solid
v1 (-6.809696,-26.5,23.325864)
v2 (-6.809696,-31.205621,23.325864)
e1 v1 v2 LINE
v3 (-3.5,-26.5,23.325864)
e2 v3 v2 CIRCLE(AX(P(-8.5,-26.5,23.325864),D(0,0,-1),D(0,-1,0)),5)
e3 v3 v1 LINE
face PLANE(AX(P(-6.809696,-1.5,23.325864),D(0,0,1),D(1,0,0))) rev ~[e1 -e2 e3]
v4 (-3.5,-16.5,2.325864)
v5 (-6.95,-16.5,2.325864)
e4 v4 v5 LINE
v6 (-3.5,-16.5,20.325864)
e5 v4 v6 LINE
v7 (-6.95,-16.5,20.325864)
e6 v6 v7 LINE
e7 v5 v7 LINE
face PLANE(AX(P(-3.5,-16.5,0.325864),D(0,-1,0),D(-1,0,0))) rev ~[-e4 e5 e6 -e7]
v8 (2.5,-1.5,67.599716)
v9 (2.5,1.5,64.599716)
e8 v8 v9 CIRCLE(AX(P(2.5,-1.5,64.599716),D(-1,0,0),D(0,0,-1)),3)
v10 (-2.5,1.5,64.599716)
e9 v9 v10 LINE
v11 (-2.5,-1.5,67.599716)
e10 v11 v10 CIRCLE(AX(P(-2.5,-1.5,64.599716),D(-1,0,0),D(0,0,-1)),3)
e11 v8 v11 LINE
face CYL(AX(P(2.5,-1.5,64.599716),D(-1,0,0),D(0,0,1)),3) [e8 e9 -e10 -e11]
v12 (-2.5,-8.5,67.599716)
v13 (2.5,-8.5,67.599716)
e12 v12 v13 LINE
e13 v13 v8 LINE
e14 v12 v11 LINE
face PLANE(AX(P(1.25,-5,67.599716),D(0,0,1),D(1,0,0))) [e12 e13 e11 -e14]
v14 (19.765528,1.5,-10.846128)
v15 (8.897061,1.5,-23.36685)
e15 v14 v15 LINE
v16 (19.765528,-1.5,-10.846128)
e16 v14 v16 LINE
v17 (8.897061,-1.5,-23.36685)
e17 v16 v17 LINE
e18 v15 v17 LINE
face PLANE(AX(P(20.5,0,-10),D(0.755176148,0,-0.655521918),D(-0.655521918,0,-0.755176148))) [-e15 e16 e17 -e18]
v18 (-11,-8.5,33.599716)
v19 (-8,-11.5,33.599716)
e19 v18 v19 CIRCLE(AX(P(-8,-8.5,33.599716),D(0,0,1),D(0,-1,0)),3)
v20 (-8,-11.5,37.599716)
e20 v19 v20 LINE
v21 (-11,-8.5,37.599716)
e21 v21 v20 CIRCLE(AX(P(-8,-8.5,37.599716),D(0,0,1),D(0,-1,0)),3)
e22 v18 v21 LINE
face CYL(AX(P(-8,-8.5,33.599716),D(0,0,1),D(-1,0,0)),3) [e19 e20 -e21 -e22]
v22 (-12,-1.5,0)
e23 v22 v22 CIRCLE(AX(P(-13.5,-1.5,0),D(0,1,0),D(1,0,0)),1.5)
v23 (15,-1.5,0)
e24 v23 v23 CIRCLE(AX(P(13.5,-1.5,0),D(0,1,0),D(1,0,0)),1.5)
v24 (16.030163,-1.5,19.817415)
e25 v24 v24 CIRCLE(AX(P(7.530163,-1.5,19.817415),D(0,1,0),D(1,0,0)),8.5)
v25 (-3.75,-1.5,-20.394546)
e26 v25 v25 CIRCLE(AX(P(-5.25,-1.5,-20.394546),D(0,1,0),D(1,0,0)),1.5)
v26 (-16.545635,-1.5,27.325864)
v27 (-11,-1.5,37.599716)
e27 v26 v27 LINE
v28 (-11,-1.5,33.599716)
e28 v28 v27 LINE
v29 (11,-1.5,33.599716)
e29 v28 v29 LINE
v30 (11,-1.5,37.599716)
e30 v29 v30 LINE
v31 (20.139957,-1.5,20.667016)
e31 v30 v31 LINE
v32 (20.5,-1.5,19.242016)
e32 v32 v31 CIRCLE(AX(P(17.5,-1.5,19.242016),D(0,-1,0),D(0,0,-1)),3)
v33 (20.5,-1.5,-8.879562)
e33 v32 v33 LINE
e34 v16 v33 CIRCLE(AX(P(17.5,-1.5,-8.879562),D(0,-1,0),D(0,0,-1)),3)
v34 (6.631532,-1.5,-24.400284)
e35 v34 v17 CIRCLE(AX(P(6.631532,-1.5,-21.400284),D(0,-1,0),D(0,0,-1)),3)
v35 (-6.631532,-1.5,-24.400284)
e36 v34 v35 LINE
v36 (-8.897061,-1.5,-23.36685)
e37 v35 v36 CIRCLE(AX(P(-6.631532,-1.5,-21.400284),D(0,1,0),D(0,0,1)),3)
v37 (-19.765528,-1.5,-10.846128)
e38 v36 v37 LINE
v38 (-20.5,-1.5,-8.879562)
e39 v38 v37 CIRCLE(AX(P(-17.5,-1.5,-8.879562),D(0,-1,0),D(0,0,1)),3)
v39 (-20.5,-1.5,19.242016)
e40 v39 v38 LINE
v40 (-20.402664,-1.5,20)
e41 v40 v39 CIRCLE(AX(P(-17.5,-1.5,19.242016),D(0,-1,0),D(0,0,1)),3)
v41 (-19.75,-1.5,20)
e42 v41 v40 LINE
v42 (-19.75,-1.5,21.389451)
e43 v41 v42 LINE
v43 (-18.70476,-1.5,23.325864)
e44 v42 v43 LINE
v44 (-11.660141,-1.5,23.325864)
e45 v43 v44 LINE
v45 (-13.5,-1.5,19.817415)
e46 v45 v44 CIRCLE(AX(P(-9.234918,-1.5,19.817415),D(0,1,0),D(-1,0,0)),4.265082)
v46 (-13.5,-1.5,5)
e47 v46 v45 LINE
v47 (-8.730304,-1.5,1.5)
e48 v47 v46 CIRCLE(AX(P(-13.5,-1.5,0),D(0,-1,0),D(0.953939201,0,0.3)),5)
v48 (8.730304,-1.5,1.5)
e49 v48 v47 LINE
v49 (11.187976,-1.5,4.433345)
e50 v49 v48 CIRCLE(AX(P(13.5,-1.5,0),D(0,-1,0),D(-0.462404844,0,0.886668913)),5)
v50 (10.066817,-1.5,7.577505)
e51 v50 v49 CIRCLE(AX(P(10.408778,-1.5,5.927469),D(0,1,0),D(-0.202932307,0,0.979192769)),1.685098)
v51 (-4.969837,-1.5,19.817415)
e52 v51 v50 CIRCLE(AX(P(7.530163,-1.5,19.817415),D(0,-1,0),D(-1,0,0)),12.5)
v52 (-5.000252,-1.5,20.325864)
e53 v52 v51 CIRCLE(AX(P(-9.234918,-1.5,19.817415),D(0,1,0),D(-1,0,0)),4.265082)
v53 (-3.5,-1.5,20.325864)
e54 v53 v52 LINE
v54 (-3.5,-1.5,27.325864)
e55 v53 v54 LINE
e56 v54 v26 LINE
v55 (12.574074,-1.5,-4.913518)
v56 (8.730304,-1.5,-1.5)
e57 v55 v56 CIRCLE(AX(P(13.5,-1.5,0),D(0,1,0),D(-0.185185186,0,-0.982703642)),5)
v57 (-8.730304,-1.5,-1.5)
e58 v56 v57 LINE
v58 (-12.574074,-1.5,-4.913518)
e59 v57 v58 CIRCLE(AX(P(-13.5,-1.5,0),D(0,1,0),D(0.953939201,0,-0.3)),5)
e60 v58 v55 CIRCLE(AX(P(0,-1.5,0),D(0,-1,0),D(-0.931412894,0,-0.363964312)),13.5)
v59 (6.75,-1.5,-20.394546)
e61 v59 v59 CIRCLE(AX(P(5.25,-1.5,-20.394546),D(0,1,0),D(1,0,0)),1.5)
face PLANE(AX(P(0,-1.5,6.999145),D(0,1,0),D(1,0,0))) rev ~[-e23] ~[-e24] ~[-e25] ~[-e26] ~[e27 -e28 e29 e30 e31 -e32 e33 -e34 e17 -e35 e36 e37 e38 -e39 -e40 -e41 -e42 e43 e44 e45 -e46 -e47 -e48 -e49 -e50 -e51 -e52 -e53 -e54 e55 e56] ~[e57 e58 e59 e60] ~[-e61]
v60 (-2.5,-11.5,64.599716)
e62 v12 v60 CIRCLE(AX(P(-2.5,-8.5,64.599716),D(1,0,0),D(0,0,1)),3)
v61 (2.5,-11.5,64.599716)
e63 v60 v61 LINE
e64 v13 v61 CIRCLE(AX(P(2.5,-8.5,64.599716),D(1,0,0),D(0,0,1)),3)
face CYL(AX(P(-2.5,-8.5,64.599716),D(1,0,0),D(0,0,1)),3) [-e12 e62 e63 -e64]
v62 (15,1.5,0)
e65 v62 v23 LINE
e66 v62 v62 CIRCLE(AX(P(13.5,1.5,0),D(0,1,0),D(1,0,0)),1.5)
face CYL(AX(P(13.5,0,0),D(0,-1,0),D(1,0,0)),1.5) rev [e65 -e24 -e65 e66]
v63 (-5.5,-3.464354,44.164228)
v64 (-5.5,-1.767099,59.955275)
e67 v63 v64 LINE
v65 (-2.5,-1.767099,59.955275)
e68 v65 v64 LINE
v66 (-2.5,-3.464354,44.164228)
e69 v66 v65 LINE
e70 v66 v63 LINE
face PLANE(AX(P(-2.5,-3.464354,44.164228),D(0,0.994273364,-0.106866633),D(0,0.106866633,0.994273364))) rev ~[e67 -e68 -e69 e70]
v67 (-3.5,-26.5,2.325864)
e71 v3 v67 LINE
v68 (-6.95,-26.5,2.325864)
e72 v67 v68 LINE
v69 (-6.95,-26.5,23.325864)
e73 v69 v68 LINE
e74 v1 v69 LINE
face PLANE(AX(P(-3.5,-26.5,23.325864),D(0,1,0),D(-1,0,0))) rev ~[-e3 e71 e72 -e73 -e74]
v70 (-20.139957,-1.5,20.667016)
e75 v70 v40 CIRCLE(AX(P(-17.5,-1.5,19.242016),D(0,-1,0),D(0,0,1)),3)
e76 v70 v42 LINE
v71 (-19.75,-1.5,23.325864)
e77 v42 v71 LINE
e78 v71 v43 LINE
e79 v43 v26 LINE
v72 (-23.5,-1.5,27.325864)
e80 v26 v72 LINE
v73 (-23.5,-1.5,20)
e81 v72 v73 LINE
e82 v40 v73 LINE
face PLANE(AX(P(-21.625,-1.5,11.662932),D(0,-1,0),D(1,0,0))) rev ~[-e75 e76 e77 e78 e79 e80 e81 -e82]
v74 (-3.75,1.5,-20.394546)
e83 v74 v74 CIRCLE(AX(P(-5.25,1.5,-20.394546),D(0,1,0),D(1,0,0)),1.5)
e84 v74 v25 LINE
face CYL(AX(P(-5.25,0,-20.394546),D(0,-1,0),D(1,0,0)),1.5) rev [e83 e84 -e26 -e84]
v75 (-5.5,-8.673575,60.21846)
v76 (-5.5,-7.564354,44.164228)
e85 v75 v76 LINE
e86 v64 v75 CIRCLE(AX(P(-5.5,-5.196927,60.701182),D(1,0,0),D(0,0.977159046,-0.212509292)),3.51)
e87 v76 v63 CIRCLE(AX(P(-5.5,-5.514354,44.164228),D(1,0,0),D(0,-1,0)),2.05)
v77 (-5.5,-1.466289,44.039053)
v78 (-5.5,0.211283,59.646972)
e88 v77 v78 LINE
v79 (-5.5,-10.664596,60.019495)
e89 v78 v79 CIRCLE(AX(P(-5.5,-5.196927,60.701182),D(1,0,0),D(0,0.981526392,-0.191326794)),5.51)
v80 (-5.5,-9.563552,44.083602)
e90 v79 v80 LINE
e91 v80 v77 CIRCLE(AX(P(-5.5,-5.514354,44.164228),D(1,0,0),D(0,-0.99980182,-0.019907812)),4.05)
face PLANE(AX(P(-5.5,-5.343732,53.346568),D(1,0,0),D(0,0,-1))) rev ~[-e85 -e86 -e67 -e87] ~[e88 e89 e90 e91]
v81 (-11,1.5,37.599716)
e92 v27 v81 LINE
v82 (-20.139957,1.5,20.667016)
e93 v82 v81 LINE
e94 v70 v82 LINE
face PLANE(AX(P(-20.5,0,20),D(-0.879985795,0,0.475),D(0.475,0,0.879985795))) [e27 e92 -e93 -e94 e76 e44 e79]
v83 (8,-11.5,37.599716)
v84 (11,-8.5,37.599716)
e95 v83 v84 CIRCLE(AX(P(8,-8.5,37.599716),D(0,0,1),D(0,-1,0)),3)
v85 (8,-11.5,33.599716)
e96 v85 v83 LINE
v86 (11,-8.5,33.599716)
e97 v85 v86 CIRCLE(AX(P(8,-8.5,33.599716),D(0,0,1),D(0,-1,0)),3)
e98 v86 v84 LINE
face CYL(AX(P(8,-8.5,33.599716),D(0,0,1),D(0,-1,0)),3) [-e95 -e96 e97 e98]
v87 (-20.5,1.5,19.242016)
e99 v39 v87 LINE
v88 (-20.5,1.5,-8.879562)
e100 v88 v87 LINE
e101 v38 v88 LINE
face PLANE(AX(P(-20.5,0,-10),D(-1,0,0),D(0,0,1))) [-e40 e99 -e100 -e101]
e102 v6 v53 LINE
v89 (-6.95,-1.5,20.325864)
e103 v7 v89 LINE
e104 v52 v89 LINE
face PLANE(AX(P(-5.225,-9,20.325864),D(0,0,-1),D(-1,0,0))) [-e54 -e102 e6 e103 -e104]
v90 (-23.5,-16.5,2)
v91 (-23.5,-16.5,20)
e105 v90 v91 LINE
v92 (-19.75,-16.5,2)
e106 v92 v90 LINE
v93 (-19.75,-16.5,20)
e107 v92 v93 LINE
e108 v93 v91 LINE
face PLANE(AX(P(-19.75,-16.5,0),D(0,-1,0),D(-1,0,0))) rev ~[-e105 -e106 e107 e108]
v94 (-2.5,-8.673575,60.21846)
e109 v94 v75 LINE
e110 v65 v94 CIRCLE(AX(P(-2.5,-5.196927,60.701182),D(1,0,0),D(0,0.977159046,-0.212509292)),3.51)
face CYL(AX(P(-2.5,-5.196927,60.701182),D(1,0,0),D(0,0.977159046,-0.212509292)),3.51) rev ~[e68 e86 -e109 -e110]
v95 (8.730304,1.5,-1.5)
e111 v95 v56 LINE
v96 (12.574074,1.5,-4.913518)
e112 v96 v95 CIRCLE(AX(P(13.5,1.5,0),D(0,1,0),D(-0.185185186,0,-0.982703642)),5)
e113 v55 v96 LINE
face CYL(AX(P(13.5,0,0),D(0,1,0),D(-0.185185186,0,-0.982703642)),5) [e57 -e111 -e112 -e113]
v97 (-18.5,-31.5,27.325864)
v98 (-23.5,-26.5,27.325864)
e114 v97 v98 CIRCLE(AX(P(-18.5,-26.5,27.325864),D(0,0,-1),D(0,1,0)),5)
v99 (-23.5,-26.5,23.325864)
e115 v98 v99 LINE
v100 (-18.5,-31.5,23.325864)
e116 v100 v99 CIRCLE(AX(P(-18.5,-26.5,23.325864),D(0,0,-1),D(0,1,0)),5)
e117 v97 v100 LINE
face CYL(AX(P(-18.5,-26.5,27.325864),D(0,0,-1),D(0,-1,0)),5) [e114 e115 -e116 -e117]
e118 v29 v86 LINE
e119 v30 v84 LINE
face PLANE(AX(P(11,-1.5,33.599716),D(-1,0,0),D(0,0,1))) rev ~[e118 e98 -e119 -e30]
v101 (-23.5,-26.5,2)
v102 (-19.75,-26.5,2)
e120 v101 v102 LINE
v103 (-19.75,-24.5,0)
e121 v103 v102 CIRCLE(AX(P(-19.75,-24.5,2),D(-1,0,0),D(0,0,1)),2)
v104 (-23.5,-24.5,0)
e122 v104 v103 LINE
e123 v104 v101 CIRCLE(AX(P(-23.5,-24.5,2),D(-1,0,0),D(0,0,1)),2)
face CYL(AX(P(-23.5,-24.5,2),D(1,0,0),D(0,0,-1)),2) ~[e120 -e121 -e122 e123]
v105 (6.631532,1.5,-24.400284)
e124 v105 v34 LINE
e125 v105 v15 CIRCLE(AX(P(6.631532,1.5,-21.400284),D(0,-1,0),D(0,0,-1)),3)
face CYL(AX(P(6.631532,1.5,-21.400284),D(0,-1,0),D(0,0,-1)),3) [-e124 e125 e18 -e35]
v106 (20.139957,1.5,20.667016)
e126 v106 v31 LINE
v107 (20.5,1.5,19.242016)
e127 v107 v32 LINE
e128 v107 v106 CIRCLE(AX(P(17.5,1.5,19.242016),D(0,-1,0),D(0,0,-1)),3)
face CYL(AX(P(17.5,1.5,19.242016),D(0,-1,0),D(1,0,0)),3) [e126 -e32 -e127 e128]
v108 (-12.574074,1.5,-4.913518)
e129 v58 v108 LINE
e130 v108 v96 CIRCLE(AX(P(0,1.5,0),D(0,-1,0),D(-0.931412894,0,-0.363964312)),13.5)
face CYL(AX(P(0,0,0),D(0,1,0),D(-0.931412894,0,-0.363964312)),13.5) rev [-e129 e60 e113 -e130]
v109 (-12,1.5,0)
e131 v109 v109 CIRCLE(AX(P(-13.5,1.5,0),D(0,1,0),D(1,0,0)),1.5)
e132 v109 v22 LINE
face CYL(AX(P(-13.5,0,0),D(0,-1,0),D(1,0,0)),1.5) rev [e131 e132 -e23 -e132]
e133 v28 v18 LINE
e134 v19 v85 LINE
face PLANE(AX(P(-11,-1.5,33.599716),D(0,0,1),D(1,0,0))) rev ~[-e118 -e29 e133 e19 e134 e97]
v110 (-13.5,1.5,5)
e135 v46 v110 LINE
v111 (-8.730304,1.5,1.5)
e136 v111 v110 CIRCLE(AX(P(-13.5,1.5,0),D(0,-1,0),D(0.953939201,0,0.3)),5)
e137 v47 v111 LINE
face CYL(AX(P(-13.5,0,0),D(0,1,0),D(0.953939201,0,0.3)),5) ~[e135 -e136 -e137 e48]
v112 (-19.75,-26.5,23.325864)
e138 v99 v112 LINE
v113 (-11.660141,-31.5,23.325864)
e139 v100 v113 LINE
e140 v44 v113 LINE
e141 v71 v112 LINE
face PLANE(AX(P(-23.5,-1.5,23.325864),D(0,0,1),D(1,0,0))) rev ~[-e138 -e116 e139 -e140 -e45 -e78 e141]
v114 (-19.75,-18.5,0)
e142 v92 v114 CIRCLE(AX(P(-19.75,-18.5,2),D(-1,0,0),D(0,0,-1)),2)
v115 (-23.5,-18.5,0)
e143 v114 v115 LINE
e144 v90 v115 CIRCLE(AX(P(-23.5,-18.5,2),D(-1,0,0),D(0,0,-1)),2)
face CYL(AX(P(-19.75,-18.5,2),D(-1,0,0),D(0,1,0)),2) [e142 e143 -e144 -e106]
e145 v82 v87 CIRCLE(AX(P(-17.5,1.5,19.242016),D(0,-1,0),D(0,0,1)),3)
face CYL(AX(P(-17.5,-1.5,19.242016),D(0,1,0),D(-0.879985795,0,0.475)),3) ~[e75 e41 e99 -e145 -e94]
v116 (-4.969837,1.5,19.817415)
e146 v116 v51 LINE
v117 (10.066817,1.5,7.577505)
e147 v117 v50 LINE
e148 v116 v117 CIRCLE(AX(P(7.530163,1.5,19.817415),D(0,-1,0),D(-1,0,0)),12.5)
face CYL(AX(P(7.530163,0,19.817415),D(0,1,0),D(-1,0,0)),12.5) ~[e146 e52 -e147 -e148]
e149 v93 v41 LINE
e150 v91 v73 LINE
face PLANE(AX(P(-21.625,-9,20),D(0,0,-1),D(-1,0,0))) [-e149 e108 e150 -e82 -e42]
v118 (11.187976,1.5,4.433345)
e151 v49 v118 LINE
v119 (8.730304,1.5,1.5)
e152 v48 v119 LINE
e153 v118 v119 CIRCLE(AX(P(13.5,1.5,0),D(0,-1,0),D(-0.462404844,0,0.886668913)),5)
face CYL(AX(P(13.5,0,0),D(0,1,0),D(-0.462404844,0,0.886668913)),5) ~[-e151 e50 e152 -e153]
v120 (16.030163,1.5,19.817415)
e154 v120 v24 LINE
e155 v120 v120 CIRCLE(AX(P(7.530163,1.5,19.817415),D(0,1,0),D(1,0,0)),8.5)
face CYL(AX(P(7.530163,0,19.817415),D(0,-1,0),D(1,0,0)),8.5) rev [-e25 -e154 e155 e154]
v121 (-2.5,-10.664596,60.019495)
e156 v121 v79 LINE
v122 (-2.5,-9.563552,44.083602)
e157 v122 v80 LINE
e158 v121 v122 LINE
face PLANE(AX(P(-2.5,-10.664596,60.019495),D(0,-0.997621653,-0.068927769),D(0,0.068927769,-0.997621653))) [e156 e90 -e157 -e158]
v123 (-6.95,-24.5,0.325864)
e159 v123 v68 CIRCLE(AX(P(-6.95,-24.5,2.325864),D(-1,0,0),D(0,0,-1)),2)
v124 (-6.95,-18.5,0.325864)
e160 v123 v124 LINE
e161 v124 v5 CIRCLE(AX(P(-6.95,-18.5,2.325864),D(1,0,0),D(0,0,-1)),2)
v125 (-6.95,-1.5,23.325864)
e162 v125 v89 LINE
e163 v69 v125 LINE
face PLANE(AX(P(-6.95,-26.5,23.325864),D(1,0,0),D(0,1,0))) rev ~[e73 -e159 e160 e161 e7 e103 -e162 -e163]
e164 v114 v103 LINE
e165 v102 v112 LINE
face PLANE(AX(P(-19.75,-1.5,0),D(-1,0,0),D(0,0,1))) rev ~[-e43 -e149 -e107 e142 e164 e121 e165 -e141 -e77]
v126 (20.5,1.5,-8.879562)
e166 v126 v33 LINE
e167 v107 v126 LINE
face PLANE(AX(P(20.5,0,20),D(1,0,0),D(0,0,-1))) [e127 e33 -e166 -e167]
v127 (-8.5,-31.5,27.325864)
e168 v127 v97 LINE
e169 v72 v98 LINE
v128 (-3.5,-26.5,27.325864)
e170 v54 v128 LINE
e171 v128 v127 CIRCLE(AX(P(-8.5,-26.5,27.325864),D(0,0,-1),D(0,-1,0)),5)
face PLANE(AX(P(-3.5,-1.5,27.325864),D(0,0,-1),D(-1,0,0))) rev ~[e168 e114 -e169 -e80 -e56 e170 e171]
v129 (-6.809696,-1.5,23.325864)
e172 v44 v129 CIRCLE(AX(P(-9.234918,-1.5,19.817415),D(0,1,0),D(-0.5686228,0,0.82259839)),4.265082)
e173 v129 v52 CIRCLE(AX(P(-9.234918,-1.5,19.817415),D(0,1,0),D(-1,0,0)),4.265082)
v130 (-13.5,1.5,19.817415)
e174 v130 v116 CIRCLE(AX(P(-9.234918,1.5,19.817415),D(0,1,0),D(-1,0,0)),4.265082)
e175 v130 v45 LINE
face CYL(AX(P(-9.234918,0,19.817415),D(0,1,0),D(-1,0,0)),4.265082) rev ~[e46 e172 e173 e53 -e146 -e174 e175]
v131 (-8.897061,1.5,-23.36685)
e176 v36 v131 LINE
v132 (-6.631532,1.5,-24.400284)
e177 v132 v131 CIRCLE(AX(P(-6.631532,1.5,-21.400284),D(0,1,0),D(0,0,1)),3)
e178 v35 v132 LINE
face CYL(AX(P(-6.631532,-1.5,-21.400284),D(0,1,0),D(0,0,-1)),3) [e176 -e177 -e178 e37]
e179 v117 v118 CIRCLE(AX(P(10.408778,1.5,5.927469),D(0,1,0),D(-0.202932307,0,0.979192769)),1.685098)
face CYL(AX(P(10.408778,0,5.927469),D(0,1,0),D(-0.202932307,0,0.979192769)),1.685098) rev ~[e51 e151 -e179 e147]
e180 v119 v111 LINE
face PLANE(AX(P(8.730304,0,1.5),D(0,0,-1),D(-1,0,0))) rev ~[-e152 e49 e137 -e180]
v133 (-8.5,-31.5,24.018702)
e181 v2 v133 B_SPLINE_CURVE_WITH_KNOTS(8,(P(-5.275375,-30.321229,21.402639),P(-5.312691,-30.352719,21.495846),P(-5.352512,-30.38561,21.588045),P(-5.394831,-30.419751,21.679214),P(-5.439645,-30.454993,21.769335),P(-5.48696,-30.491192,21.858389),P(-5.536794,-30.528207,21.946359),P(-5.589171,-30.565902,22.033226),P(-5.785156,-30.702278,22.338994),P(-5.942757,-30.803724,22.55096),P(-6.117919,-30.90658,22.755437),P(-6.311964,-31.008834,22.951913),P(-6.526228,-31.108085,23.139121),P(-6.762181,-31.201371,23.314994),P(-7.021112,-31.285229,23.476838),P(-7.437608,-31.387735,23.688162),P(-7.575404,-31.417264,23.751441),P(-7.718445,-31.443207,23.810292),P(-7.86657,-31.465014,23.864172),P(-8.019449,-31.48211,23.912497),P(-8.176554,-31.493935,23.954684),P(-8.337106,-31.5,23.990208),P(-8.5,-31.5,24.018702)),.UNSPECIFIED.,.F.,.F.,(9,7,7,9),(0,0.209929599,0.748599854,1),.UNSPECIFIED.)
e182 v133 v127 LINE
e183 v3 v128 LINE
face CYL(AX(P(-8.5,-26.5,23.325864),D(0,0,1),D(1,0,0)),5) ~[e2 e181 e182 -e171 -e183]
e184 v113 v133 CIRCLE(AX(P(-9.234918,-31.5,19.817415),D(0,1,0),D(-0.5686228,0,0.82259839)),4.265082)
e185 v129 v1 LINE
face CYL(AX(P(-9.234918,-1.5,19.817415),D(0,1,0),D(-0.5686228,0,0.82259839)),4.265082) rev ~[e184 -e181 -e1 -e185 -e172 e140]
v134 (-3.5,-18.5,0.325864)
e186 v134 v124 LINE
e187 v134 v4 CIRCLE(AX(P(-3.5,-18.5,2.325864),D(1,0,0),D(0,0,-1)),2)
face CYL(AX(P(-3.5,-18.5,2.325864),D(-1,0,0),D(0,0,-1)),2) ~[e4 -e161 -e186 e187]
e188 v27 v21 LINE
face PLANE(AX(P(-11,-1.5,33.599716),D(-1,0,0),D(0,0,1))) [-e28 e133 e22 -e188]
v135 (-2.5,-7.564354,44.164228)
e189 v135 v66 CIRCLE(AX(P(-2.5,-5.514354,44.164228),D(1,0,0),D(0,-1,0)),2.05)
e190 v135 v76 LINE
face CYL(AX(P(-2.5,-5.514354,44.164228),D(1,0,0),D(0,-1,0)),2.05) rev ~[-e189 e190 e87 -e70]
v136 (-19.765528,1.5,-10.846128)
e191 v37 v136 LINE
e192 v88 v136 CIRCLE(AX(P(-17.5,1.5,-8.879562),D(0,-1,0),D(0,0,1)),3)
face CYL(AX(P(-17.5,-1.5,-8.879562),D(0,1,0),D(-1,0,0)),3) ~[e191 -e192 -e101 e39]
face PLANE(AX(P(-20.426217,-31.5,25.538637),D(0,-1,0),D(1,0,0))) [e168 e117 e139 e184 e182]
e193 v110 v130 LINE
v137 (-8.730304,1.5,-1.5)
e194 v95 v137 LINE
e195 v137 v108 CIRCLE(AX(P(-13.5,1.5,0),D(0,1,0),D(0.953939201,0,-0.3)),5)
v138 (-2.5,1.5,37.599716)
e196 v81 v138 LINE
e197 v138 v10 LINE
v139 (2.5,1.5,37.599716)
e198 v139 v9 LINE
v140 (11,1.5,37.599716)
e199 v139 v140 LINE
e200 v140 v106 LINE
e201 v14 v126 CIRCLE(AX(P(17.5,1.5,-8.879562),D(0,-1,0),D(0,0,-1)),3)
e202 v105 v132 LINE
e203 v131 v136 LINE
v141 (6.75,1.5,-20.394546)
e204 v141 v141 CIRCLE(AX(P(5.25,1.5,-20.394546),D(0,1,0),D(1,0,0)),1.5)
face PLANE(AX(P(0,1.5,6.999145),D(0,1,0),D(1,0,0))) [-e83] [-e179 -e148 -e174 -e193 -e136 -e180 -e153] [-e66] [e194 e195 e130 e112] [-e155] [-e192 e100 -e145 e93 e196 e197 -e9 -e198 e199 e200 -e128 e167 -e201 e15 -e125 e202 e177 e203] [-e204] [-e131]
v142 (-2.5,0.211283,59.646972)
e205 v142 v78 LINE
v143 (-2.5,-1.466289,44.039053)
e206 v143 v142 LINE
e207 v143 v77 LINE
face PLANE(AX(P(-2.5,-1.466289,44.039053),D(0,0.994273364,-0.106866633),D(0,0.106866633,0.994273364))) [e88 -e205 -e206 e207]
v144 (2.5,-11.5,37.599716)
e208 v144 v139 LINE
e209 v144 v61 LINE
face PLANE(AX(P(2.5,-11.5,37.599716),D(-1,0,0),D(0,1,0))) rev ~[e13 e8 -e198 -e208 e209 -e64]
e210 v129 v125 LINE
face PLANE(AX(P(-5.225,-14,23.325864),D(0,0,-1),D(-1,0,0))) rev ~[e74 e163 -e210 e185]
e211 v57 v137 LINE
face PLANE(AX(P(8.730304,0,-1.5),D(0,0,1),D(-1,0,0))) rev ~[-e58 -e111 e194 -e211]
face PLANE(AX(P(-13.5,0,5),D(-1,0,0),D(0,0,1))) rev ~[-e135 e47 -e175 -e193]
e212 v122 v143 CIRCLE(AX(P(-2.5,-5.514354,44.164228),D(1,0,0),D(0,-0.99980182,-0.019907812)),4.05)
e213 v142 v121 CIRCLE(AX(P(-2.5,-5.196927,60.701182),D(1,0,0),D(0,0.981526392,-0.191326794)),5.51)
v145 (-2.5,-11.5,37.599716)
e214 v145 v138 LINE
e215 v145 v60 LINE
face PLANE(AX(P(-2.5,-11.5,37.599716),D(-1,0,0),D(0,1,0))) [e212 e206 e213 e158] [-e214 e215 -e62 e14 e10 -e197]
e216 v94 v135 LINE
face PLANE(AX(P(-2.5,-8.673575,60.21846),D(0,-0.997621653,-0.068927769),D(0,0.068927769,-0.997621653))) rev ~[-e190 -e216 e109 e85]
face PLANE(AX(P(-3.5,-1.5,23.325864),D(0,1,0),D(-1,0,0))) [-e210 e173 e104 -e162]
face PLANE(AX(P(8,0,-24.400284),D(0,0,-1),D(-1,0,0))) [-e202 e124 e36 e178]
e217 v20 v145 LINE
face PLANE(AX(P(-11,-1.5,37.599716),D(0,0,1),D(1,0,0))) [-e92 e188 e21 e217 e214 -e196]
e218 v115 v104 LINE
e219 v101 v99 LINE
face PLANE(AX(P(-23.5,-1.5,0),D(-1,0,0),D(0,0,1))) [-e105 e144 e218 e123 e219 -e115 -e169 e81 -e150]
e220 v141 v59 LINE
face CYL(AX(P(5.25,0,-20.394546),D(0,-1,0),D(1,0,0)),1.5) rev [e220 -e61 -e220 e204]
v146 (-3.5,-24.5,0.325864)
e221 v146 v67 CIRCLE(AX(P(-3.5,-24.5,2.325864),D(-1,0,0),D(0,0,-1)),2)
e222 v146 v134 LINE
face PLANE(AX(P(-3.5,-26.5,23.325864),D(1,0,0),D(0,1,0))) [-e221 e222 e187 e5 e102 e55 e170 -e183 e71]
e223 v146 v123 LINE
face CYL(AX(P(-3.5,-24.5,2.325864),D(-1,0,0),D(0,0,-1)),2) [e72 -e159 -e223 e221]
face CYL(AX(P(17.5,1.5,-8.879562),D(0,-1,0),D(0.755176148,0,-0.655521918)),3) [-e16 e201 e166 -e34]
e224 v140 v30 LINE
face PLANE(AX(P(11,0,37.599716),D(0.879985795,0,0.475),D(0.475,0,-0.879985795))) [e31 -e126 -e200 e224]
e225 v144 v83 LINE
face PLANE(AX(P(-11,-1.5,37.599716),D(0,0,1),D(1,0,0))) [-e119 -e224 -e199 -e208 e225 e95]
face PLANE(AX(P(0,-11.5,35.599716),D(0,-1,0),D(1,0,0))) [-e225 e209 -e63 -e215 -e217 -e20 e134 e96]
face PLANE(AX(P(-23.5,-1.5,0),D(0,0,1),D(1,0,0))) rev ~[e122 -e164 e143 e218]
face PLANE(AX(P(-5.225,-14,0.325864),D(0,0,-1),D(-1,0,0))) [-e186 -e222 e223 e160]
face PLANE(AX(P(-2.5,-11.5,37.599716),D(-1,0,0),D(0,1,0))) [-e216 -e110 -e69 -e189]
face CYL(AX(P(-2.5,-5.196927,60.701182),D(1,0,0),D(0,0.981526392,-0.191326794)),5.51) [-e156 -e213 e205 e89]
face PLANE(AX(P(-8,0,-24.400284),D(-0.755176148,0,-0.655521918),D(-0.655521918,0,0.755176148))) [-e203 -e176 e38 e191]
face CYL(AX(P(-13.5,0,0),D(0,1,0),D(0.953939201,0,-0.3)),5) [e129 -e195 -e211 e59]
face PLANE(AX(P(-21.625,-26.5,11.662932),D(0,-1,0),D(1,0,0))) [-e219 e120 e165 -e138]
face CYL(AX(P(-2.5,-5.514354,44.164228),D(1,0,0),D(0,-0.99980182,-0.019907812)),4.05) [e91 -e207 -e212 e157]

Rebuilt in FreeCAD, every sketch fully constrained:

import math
import FreeCAD as App
import Part
import Sketcher
from FreeCAD import Vector
Q = App.Units.Quantity


def edges_at(feature, points):
    """Names of the edges that pass closest to the given points."""
    edges = feature.Shape.Edges
    near = lambda p: min(range(len(edges)), key=lambda i: edges[i].distToShape(Part.Vertex(*p))[0])
    return sorted({f"Edge{near(p) + 1}" for p in points})

doc = App.newDocument("Part")
params = doc.addObject("Spreadsheet::Sheet", "Params")
for row, (alias, value) in enumerate([
    ("sketch1_diameter", "17 mm"),
    ("sketch1_diameter2", "3 mm"),
    ("sketch1_radius", "5 mm"),
    ("sketch1_radius2", "12.5 mm"),
    ("sketch1_radius3", "13.5 mm"),
    ("pad1_length", "3 mm"),
    ("fillet_radius", "3 mm"),
    ("sketch2_width", "20 mm"),
    ("sketch2_height", "4 mm"),
    ("pad2_length", "30 mm"),
    ("sketch3_width", "3.75 mm"),
    ("pad3_length", "25 mm"),
    ("sketch4_height", "25 mm"),
    ("sketch4_width", "3.45 mm"),
    ("pad4_length", "23 mm"),
    ("sketch5_height", "15 mm"),
    ("sketch5_width", "3.75 mm"),
    ("pocket1_length", "20 mm"),
    ("sketch6_height", "15 mm"),
    ("sketch6_width", "3.45 mm"),
    ("pocket2_length", "20 mm"),
    ("sketch7_width", "22 mm"),
    ("sketch7_height", "4 mm"),
    ("pad5_length", "10 mm"),
    ("sketch8_width", "5 mm"),
    ("sketch8_height", "13 mm"),
    ("pad6_length", "30 mm"),
    ("fillet2_radius", "3 mm"),
    ("fillet3_radius", "3 mm"),
    ("fillet4_radius", "3 mm"),
    ("fillet5_radius", "3 mm"),
    ("fillet6_radius", "2 mm"),
    ("fillet7_radius", "2 mm"),
    ("fillet8_radius", "2 mm"),
    ("fillet9_radius", "2 mm"),
    ("fillet10_radius", "5 mm"),
    ("fillet11_radius", "5 mm"),
    ("sketch9_radius", "5.51 mm"),
    ("sketch9_radius2", "4.05 mm"),
    ("sketch9_radius3", "2.05 mm"),
    ("sketch9_radius4", "3.51 mm"),
    ("pad7_length", "3 mm"),
], start=1):
    params.set(f"A{row}", alias)
    params.set(f"B{row}", "=" + value)
    params.setAlias(f"B{row}", alias)

body = doc.addObject("PartDesign::Body", "Body")

sketch1 = body.newObject("Sketcher::SketchObject", "Sketch")
sketch1.AttachmentSupport = (doc.getObject("XZ_Plane"), [""])
sketch1.MapMode = "FlatFace"
sketch1.addGeometry(Part.LineSegment(Vector(8, -24.400284, 0), Vector(-8, -24.400284, 0)), False)
sketch1.addGeometry(Part.LineSegment(Vector(-8, -24.400284, 0), Vector(-20.5, -10, 0)), False)
sketch1.addGeometry(Part.LineSegment(Vector(-20.5, -10, 0), Vector(-20.5, 20, 0)), False)
sketch1.addGeometry(Part.LineSegment(Vector(-20.5, 20, 0), Vector(-11, 37.599716, 0)), False)
sketch1.addGeometry(Part.LineSegment(Vector(-11, 37.599716, 0), Vector(11, 37.599716, 0)), False)
sketch1.addGeometry(Part.LineSegment(Vector(11, 37.599716, 0), Vector(20.5, 20, 0)), False)
sketch1.addGeometry(Part.LineSegment(Vector(20.5, 20, 0), Vector(20.5, -10, 0)), False)
sketch1.addGeometry(Part.LineSegment(Vector(20.5, -10, 0), Vector(8, -24.400284, 0)), False)
sketch1.addGeometry(Part.LineSegment(Vector(-13.5, 19.817415, 0), Vector(-13.5, 5, 0)), False)
sketch1.addGeometry(Part.ArcOfCircle(Part.Circle(Vector(-13.5, 0, 0), Vector(0, 0, 1), 5), math.radians(17.457603), math.radians(90)), False)
sketch1.addGeometry(Part.LineSegment(Vector(-8.730304, 1.5, 0), Vector(8.730304, 1.5, 0)), False)
sketch1.addGeometry(Part.ArcOfCircle(Part.Circle(Vector(13.5, 0, 0), Vector(0, 0, 1), 5), math.radians(117.542397), math.radians(162.542397)), False)
sketch1.addGeometry(Part.ArcOfCircle(Part.Circle(Vector(10.408778, 5.927469, 0), Vector(0, 0, 1), 1.685098), math.radians(-62.457603), math.radians(101.708485)), False)
sketch1.addGeometry(Part.ArcOfCircle(Part.Circle(Vector(7.530163, 19.817415, 0), Vector(0, 0, 1), 12.5), math.radians(180), math.radians(281.708485)), False)
sketch1.addGeometry(Part.ArcOfCircle(Part.Circle(Vector(-9.234918, 19.817415, 0), Vector(0, 0, 1), 4.265082), math.radians(0), math.radians(180)), False)
sketch1.addGeometry(Part.Circle(Vector(7.530163, 19.817415, 0), Vector(0, 0, 1), 8.5), False)
sketch1.addGeometry(Part.Circle(Vector(-13.5, 0, 0), Vector(0, 0, 1), 1.5), False)
sketch1.addGeometry(Part.ArcOfCircle(Part.Circle(Vector(13.5, 0, 0), Vector(0, 0, 1), 5), math.radians(-162.542397), math.radians(-100.671929)), False)
sketch1.addGeometry(Part.LineSegment(Vector(8.730304, -1.5, 0), Vector(-8.730304, -1.5, 0)), False)
sketch1.addGeometry(Part.ArcOfCircle(Part.Circle(Vector(-13.5, 0, 0), Vector(0, 0, 1), 5), math.radians(-79.328071), math.radians(-17.457603)), False)
sketch1.addGeometry(Part.ArcOfCircle(Part.Circle(Vector(0, 0, 0), Vector(0, 0, 1), 13.5), math.radians(-158.656141), math.radians(-21.343859)), False)
sketch1.addGeometry(Part.Circle(Vector(-5.25, -20.394546, 0), Vector(0, 0, 1), 1.5), False)
sketch1.addGeometry(Part.Circle(Vector(13.5, 0, 0), Vector(0, 0, 1), 1.5), False)
sketch1.addGeometry(Part.Circle(Vector(5.25, -20.394546, 0), Vector(0, 0, 1), 1.5), False)
sketch1.addConstraint(Sketcher.Constraint("Coincident", 0, 2, 1, 1))
sketch1.addConstraint(Sketcher.Constraint("Coincident", 1, 2, 2, 1))
sketch1.addConstraint(Sketcher.Constraint("Coincident", 2, 2, 3, 1))
sketch1.addConstraint(Sketcher.Constraint("Coincident", 3, 2, 4, 1))
sketch1.addConstraint(Sketcher.Constraint("Coincident", 4, 2, 5, 1))
sketch1.addConstraint(Sketcher.Constraint("Coincident", 5, 2, 6, 1))
sketch1.addConstraint(Sketcher.Constraint("Coincident", 6, 2, 7, 1))
sketch1.addConstraint(Sketcher.Constraint("Coincident", 7, 2, 0, 1))
sketch1.addConstraint(Sketcher.Constraint("Coincident", 8, 2, 9, 2))
sketch1.addConstraint(Sketcher.Constraint("Coincident", 9, 1, 10, 1))
sketch1.addConstraint(Sketcher.Constraint("Coincident", 10, 2, 11, 2))
sketch1.addConstraint(Sketcher.Constraint("Tangent", 11, 1, 12, 1))
sketch1.addConstraint(Sketcher.Constraint("Tangent", 12, 2, 13, 2))
sketch1.addConstraint(Sketcher.Constraint("Tangent", 13, 1, 14, 1))
sketch1.addConstraint(Sketcher.Constraint("Tangent", 14, 2, 8, 1))
sketch1.addConstraint(Sketcher.Constraint("Coincident", 17, 1, 18, 1))
sketch1.addConstraint(Sketcher.Constraint("Coincident", 18, 2, 19, 2))
sketch1.addConstraint(Sketcher.Constraint("Coincident", 19, 1, 20, 1))
sketch1.addConstraint(Sketcher.Constraint("Coincident", 20, 2, 17, 2))
sketch1.addConstraint(Sketcher.Constraint("Horizontal", 0))
sketch1.addConstraint(Sketcher.Constraint("Vertical", 2))
sketch1.addConstraint(Sketcher.Constraint("Horizontal", 4))
sketch1.addConstraint(Sketcher.Constraint("Vertical", 6))
sketch1.addConstraint(Sketcher.Constraint("Vertical", 8))
sketch1.addConstraint(Sketcher.Constraint("Horizontal", 10))
sketch1.addConstraint(Sketcher.Constraint("Horizontal", 18))
sketch1.addConstraint(Sketcher.Constraint("Coincident", 20, 3, -1, 1))
sketch1.addConstraint(Sketcher.Constraint("Coincident", 15, 3, 13, 3))
sketch1.addConstraint(Sketcher.Constraint("Coincident", 16, 3, 9, 3))
sketch1.addConstraint(Sketcher.Constraint("Coincident", 17, 3, 11, 3))
sketch1.addConstraint(Sketcher.Constraint("Coincident", 19, 3, 9, 3))
sketch1.addConstraint(Sketcher.Constraint("Coincident", 22, 3, 11, 3))
sketch1.addConstraint(Sketcher.Constraint("Equal", 9, 11))
sketch1.addConstraint(Sketcher.Constraint("Equal", 11, 17))
sketch1.addConstraint(Sketcher.Constraint("Equal", 17, 19))
sketch1.addConstraint(Sketcher.Constraint("Equal", 16, 21))
sketch1.addConstraint(Sketcher.Constraint("Equal", 21, 22))
sketch1.addConstraint(Sketcher.Constraint("Equal", 22, 23))
sketch1.addConstraint(Sketcher.Constraint("Symmetric", 9, 3, 11, 3, -1, 1))
sketch1.addConstraint(Sketcher.Constraint("Symmetric", 21, 3, 23, 3, -2))
sketch1.addConstraint(Sketcher.Constraint("Symmetric", 2, 2, 5, 2, -2))
sketch1.addConstraint(Sketcher.Constraint("Symmetric", 10, 2, 17, 1, -1))
sketch1.addConstraint(Sketcher.Constraint("Horizontal", 13, 3, 14, 3))
sketch1.addConstraint(Sketcher.Constraint("Horizontal", 1, 2, 6, 2))
sketch1.addConstraint(Sketcher.Constraint("Vertical", 19, 3, 8, 2))
sketch1.addConstraint(Sketcher.Constraint("Equal", 3, 5))
sketch1.addConstraint(Sketcher.Constraint("Equal", 1, 7))
sketch1.addConstraint(Sketcher.Constraint("Diameter", 15, Q("17 mm")))
sketch1.addConstraint(Sketcher.Constraint("Diameter", 16, Q("3 mm")))
sketch1.addConstraint(Sketcher.Constraint("Radius", 9, Q("5 mm")))
sketch1.addConstraint(Sketcher.Constraint("Radius", 13, Q("12.5 mm")))
sketch1.addConstraint(Sketcher.Constraint("Radius", 20, Q("13.5 mm")))
sketch1.addConstraint(Sketcher.Constraint("DistanceX", 0, 2, 0, 1, Q("16 mm")))
sketch1.addConstraint(Sketcher.Constraint("DistanceX", 4, 1, 4, 2, Q("22 mm")))
sketch1.addConstraint(Sketcher.Constraint("DistanceY", 2, 1, 2, 2, Q("30 mm")))
sketch1.addConstraint(Sketcher.Constraint("Distance", 3, Q("20 mm")))
sketch1.addConstraint(Sketcher.Constraint("DistanceY", 1, 2, -1, 1, Q("10 mm")))
sketch1.addConstraint(Sketcher.Constraint("DistanceX", 9, 3, 11, 3, Q("27 mm")))
sketch1.addConstraint(Sketcher.Constraint("DistanceX", 1, 2, 16, 3, Q("7 mm")))
sketch1.addConstraint(Sketcher.Constraint("DistanceY", 17, 1, 10, 2, Q("3 mm")))
sketch1.addConstraint(Sketcher.Constraint("Radius", 12, Q("1.685098 mm")))
sketch1.addConstraint(Sketcher.Constraint("DistanceX", 21, 3, 23, 3, Q("10.5 mm")))
sketch1.addConstraint(Sketcher.Constraint("Radius", 14, Q("4.265082 mm")))
sketch1.addConstraint(Sketcher.Constraint("DistanceY", 14, 3, 3, 2, Q("17.782301 mm")))
sketch1.addConstraint(Sketcher.Constraint("DistanceY", 0, 2, 21, 3, Q("4.005738 mm")))
sketch1.addConstraint(Sketcher.Constraint("Distance", 1, Q("19.068775 mm")))
sketch1.setExpression("Constraints[47]", "Params.sketch1_diameter")
sketch1.setExpression("Constraints[48]", "Params.sketch1_diameter2")
sketch1.setExpression("Constraints[49]", "Params.sketch1_radius")
sketch1.setExpression("Constraints[50]", "Params.sketch1_radius2")
sketch1.setExpression("Constraints[51]", "Params.sketch1_radius3")
pad1 = body.newObject("PartDesign::Pad", "Pad")
pad1.Profile = sketch1
pad1.setExpression("Length", "Params.pad1_length")
pad1.Midplane = True
doc.recompute()

fillet = body.newObject("PartDesign::Fillet", "Fillet")
fillet.Base = (pad1, edges_at(pad1, [
    (-20.5, 0, 20),
    (-20.5, 0, -10),
    (-8, 0, -24.4),
    (8, 0, -24.4),
    (20.5, 0, -10),
    (20.5, 0, 20),
]))
fillet.setExpression("Radius", "Params.fillet_radius")

sketch2 = body.newObject("Sketcher::SketchObject", "Sketch001")
sketch2.AttachmentSupport = (doc.getObject("XZ_Plane"), [""])
sketch2.MapMode = "FlatFace"
sketch2.AttachmentOffset = App.Placement(Vector(0, 0, 1.5), App.Rotation())
sketch2.addGeometry(Part.LineSegment(Vector(-23.5, 27.325864, 0), Vector(-23.5, 23.325864, 0)), False)
sketch2.addGeometry(Part.LineSegment(Vector(-23.5, 23.325864, 0), Vector(-11.660141, 23.325864, 0)), False)
sketch2.addGeometry(Part.ArcOfCircle(Part.Circle(Vector(-9.234918, 19.817415, 0), Vector(0, 0, 1), 4.265082), math.radians(55.345755), math.radians(124.654245)), False)
sketch2.addGeometry(Part.LineSegment(Vector(-6.809696, 23.325864, 0), Vector(-3.5, 23.325864, 0)), False)
sketch2.addGeometry(Part.LineSegment(Vector(-3.5, 23.325864, 0), Vector(-3.5, 27.325864, 0)), False)
sketch2.addGeometry(Part.LineSegment(Vector(-3.5, 27.325864, 0), Vector(-23.5, 27.325864, 0)), False)
sketch2.addConstraint(Sketcher.Constraint("Coincident", 0, 2, 1, 1))
sketch2.addConstraint(Sketcher.Constraint("Coincident", 1, 2, 2, 2))
sketch2.addConstraint(Sketcher.Constraint("Coincident", 2, 1, 3, 1))
sketch2.addConstraint(Sketcher.Constraint("Coincident", 3, 2, 4, 1))
sketch2.addConstraint(Sketcher.Constraint("Coincident", 4, 2, 5, 1))
sketch2.addConstraint(Sketcher.Constraint("Coincident", 5, 2, 0, 1))
sketch2.addConstraint(Sketcher.Constraint("Vertical", 0))
sketch2.addConstraint(Sketcher.Constraint("Horizontal", 1))
sketch2.addConstraint(Sketcher.Constraint("Horizontal", 3))
sketch2.addConstraint(Sketcher.Constraint("Vertical", 4))
sketch2.addConstraint(Sketcher.Constraint("Horizontal", 5))
sketch2.addConstraint(Sketcher.Constraint("Horizontal", 1, 2, 2, 1))
sketch2.addConstraint(Sketcher.Constraint("DistanceX", 5, 2, 5, 1, Q("20 mm")))
sketch2.addConstraint(Sketcher.Constraint("DistanceY", 0, 2, 0, 1, Q("4 mm")))
sketch2.addConstraint(Sketcher.Constraint("DistanceX", 0, 2, -1, 1, Q("23.5 mm")))
sketch2.addConstraint(Sketcher.Constraint("Radius", 2, Q("4.265082 mm")))
sketch2.addConstraint(Sketcher.Constraint("DistanceX", 1, 1, 1, 2, Q("11.839859 mm")))
sketch2.addConstraint(Sketcher.Constraint("DistanceX", 3, 1, 3, 2, Q("3.309696 mm")))
sketch2.addConstraint(Sketcher.Constraint("DistanceY", -1, 1, 2, 3, Q("19.817415 mm")))
sketch2.setExpression("Constraints[12]", "Params.sketch2_width")
sketch2.setExpression("Constraints[13]", "Params.sketch2_height")
pad2 = body.newObject("PartDesign::Pad", "Pad001")
pad2.Profile = sketch2
pad2.setExpression("Length", "Params.pad2_length")

sketch3 = body.newObject("Sketcher::SketchObject", "Sketch002")
sketch3.AttachmentSupport = (doc.getObject("XZ_Plane"), [""])
sketch3.MapMode = "FlatFace"
sketch3.AttachmentOffset = App.Placement(Vector(0, 0, 1.5), App.Rotation())
sketch3.addGeometry(Part.LineSegment(Vector(-23.5, 23.325864, 0), Vector(-23.5, 0, 0)), False)
sketch3.addGeometry(Part.LineSegment(Vector(-23.5, 0, 0), Vector(-19.75, 0, 0)), False)
sketch3.addGeometry(Part.LineSegment(Vector(-19.75, 0, 0), Vector(-19.75, 23.325864, 0)), False)
sketch3.addGeometry(Part.LineSegment(Vector(-19.75, 23.325864, 0), Vector(-23.5, 23.325864, 0)), False)
sketch3.addConstraint(Sketcher.Constraint("Coincident", 0, 2, 1, 1))
sketch3.addConstraint(Sketcher.Constraint("Coincident", 1, 2, 2, 1))
sketch3.addConstraint(Sketcher.Constraint("Coincident", 2, 2, 3, 1))
sketch3.addConstraint(Sketcher.Constraint("Coincident", 3, 2, 0, 1))
sketch3.addConstraint(Sketcher.Constraint("Vertical", 0))
sketch3.addConstraint(Sketcher.Constraint("Horizontal", 1))
sketch3.addConstraint(Sketcher.Constraint("Vertical", 2))
sketch3.addConstraint(Sketcher.Constraint("Horizontal", 3))
sketch3.addConstraint(Sketcher.Constraint("PointOnObject", 0, 2, -1))
sketch3.addConstraint(Sketcher.Constraint("DistanceX", 1, 1, 1, 2, Q("3.75 mm")))
sketch3.addConstraint(Sketcher.Constraint("DistanceX", 0, 2, -1, 1, Q("23.5 mm")))
sketch3.addConstraint(Sketcher.Constraint("DistanceY", 0, 2, 0, 1, Q("23.325864 mm")))
sketch3.setExpression("Constraints[9]", "Params.sketch3_width")
pad3 = body.newObject("PartDesign::Pad", "Pad002")
pad3.Profile = sketch3
pad3.setExpression("Length", "Params.pad3_length")

sketch4 = body.newObject("Sketcher::SketchObject", "Sketch003")
sketch4.AttachmentSupport = (doc.getObject("XY_Plane"), [""])
sketch4.MapMode = "FlatFace"
sketch4.AttachmentOffset = App.Placement(Vector(0, 0, 23.325864), App.Rotation())
sketch4.addGeometry(Part.LineSegment(Vector(-3.5, -1.5, 0), Vector(-3.5, -26.5, 0)), False)
sketch4.addGeometry(Part.LineSegment(Vector(-3.5, -26.5, 0), Vector(-6.95, -26.5, 0)), False)
sketch4.addGeometry(Part.LineSegment(Vector(-6.95, -26.5, 0), Vector(-6.95, -1.5, 0)), False)
sketch4.addGeometry(Part.LineSegment(Vector(-6.95, -1.5, 0), Vector(-3.5, -1.5, 0)), False)
sketch4.addConstraint(Sketcher.Constraint("Coincident", 0, 2, 1, 1))
sketch4.addConstraint(Sketcher.Constraint("Coincident", 1, 2, 2, 1))
sketch4.addConstraint(Sketcher.Constraint("Coincident", 2, 2, 3, 1))
sketch4.addConstraint(Sketcher.Constraint("Coincident", 3, 2, 0, 1))
sketch4.addConstraint(Sketcher.Constraint("Vertical", 0))
sketch4.addConstraint(Sketcher.Constraint("Horizontal", 1))
sketch4.addConstraint(Sketcher.Constraint("Vertical", 2))
sketch4.addConstraint(Sketcher.Constraint("Horizontal", 3))
sketch4.addConstraint(Sketcher.Constraint("DistanceY", 0, 2, 0, 1, Q("25 mm")))
sketch4.addConstraint(Sketcher.Constraint("DistanceX", 1, 2, 1, 1, Q("3.45 mm")))
sketch4.addConstraint(Sketcher.Constraint("DistanceX", 0, 2, -1, 1, Q("3.5 mm")))
sketch4.addConstraint(Sketcher.Constraint("DistanceY", 0, 2, -1, 1, Q("26.5 mm")))
sketch4.setExpression("Constraints[8]", "Params.sketch4_height")
sketch4.setExpression("Constraints[9]", "Params.sketch4_width")
pad4 = body.newObject("PartDesign::Pad", "Pad003")
pad4.Profile = sketch4
pad4.setExpression("Length", "Params.pad4_length")
pad4.Reversed = True

sketch5 = body.newObject("Sketcher::SketchObject", "Sketch004")
sketch5.AttachmentSupport = (doc.getObject("XY_Plane"), [""])
sketch5.MapMode = "FlatFace"
sketch5.addGeometry(Part.LineSegment(Vector(-19.75, -1.5, 0), Vector(-19.75, -16.5, 0)), False)
sketch5.addGeometry(Part.LineSegment(Vector(-19.75, -16.5, 0), Vector(-23.5, -16.5, 0)), False)
sketch5.addGeometry(Part.LineSegment(Vector(-23.5, -16.5, 0), Vector(-23.5, -1.5, 0)), False)
sketch5.addGeometry(Part.LineSegment(Vector(-23.5, -1.5, 0), Vector(-19.75, -1.5, 0)), False)
sketch5.addConstraint(Sketcher.Constraint("Coincident", 0, 2, 1, 1))
sketch5.addConstraint(Sketcher.Constraint("Coincident", 1, 2, 2, 1))
sketch5.addConstraint(Sketcher.Constraint("Coincident", 2, 2, 3, 1))
sketch5.addConstraint(Sketcher.Constraint("Coincident", 3, 2, 0, 1))
sketch5.addConstraint(Sketcher.Constraint("Vertical", 0))
sketch5.addConstraint(Sketcher.Constraint("Horizontal", 1))
sketch5.addConstraint(Sketcher.Constraint("Vertical", 2))
sketch5.addConstraint(Sketcher.Constraint("Horizontal", 3))
sketch5.addConstraint(Sketcher.Constraint("DistanceY", 0, 2, 0, 1, Q("15 mm")))
sketch5.addConstraint(Sketcher.Constraint("DistanceX", 1, 2, 1, 1, Q("3.75 mm")))
sketch5.addConstraint(Sketcher.Constraint("DistanceY", 0, 2, -1, 1, Q("16.5 mm")))
sketch5.addConstraint(Sketcher.Constraint("DistanceX", 1, 2, -1, 1, Q("23.5 mm")))
sketch5.setExpression("Constraints[8]", "Params.sketch5_height")
sketch5.setExpression("Constraints[9]", "Params.sketch5_width")
pocket1 = body.newObject("PartDesign::Pocket", "Pocket")
pocket1.Profile = sketch5
pocket1.setExpression("Length", "Params.pocket1_length")
pocket1.Reversed = True

sketch6 = body.newObject("Sketcher::SketchObject", "Sketch005")
sketch6.AttachmentSupport = (doc.getObject("XY_Plane"), [""])
sketch6.MapMode = "FlatFace"
sketch6.AttachmentOffset = App.Placement(Vector(0, 0, 0.325864), App.Rotation())
sketch6.addGeometry(Part.LineSegment(Vector(-3.5, -1.5, 0), Vector(-3.5, -16.5, 0)), False)
sketch6.addGeometry(Part.LineSegment(Vector(-3.5, -16.5, 0), Vector(-6.95, -16.5, 0)), False)
sketch6.addGeometry(Part.LineSegment(Vector(-6.95, -16.5, 0), Vector(-6.95, -1.5, 0)), False)
sketch6.addGeometry(Part.LineSegment(Vector(-6.95, -1.5, 0), Vector(-3.5, -1.5, 0)), False)
sketch6.addConstraint(Sketcher.Constraint("Coincident", 0, 2, 1, 1))
sketch6.addConstraint(Sketcher.Constraint("Coincident", 1, 2, 2, 1))
sketch6.addConstraint(Sketcher.Constraint("Coincident", 2, 2, 3, 1))
sketch6.addConstraint(Sketcher.Constraint("Coincident", 3, 2, 0, 1))
sketch6.addConstraint(Sketcher.Constraint("Vertical", 0))
sketch6.addConstraint(Sketcher.Constraint("Horizontal", 1))
sketch6.addConstraint(Sketcher.Constraint("Vertical", 2))
sketch6.addConstraint(Sketcher.Constraint("Horizontal", 3))
sketch6.addConstraint(Sketcher.Constraint("DistanceY", 0, 2, 0, 1, Q("15 mm")))
sketch6.addConstraint(Sketcher.Constraint("DistanceX", 1, 2, 1, 1, Q("3.45 mm")))
sketch6.addConstraint(Sketcher.Constraint("DistanceX", 0, 2, -1, 1, Q("3.5 mm")))
sketch6.addConstraint(Sketcher.Constraint("DistanceY", 0, 2, -1, 1, Q("16.5 mm")))
sketch6.setExpression("Constraints[8]", "Params.sketch6_height")
sketch6.setExpression("Constraints[9]", "Params.sketch6_width")
pocket2 = body.newObject("PartDesign::Pocket", "Pocket001")
pocket2.Profile = sketch6
pocket2.setExpression("Length", "Params.pocket2_length")
pocket2.Reversed = True

sketch7 = body.newObject("Sketcher::SketchObject", "Sketch006")
sketch7.AttachmentSupport = (doc.getObject("XZ_Plane"), [""])
sketch7.MapMode = "FlatFace"
sketch7.AttachmentOffset = App.Placement(Vector(0, 0, 1.5), App.Rotation())
sketch7.addGeometry(Part.LineSegment(Vector(-11, 37.599716, 0), Vector(-11, 33.599716, 0)), False)
sketch7.addGeometry(Part.LineSegment(Vector(-11, 33.599716, 0), Vector(11, 33.599716, 0)), False)
sketch7.addGeometry(Part.LineSegment(Vector(11, 33.599716, 0), Vector(11, 37.599716, 0)), False)
sketch7.addGeometry(Part.LineSegment(Vector(11, 37.599716, 0), Vector(-11, 37.599716, 0)), False)
sketch7.addConstraint(Sketcher.Constraint("Coincident", 0, 2, 1, 1))
sketch7.addConstraint(Sketcher.Constraint("Coincident", 1, 2, 2, 1))
sketch7.addConstraint(Sketcher.Constraint("Coincident", 2, 2, 3, 1))
sketch7.addConstraint(Sketcher.Constraint("Coincident", 3, 2, 0, 1))
sketch7.addConstraint(Sketcher.Constraint("Vertical", 0))
sketch7.addConstraint(Sketcher.Constraint("Horizontal", 1))
sketch7.addConstraint(Sketcher.Constraint("Vertical", 2))
sketch7.addConstraint(Sketcher.Constraint("Horizontal", 3))
sketch7.addConstraint(Sketcher.Constraint("DistanceX", 1, 1, 1, 2, Q("22 mm")))
sketch7.addConstraint(Sketcher.Constraint("DistanceY", 0, 2, 0, 1, Q("4 mm")))
sketch7.addConstraint(Sketcher.Constraint("DistanceX", 0, 2, -1, 1, Q("11 mm")))
sketch7.addConstraint(Sketcher.Constraint("DistanceY", -1, 1, 0, 2, Q("33.599716 mm")))
sketch7.setExpression("Constraints[8]", "Params.sketch7_width")
sketch7.setExpression("Constraints[9]", "Params.sketch7_height")
pad5 = body.newObject("PartDesign::Pad", "Pad004")
pad5.Profile = sketch7
pad5.setExpression("Length", "Params.pad5_length")

sketch8 = body.newObject("Sketcher::SketchObject", "Sketch007")
sketch8.AttachmentSupport = (doc.getObject("XY_Plane"), [""])
sketch8.MapMode = "FlatFace"
sketch8.AttachmentOffset = App.Placement(Vector(0, 0, 37.599716), App.Rotation())
sketch8.addGeometry(Part.LineSegment(Vector(2.5, -11.5, 0), Vector(2.5, 1.5, 0)), False)
sketch8.addGeometry(Part.LineSegment(Vector(2.5, 1.5, 0), Vector(-2.5, 1.5, 0)), False)
sketch8.addGeometry(Part.LineSegment(Vector(-2.5, 1.5, 0), Vector(-2.5, -11.5, 0)), False)
sketch8.addGeometry(Part.LineSegment(Vector(-2.5, -11.5, 0), Vector(2.5, -11.5, 0)), False)
sketch8.addConstraint(Sketcher.Constraint("Coincident", 0, 2, 1, 1))
sketch8.addConstraint(Sketcher.Constraint("Coincident", 1, 2, 2, 1))
sketch8.addConstraint(Sketcher.Constraint("Coincident", 2, 2, 3, 1))
sketch8.addConstraint(Sketcher.Constraint("Coincident", 3, 2, 0, 1))
sketch8.addConstraint(Sketcher.Constraint("Vertical", 0))
sketch8.addConstraint(Sketcher.Constraint("Horizontal", 1))
sketch8.addConstraint(Sketcher.Constraint("Vertical", 2))
sketch8.addConstraint(Sketcher.Constraint("Horizontal", 3))
sketch8.addConstraint(Sketcher.Constraint("DistanceX", 1, 2, 1, 1, Q("5 mm")))
sketch8.addConstraint(Sketcher.Constraint("DistanceY", 0, 1, 0, 2, Q("13 mm")))
sketch8.addConstraint(Sketcher.Constraint("DistanceX", -1, 1, 0, 2, Q("2.5 mm")))
sketch8.addConstraint(Sketcher.Constraint("DistanceY", -1, 1, 0, 2, Q("1.5 mm")))
sketch8.setExpression("Constraints[8]", "Params.sketch8_width")
sketch8.setExpression("Constraints[9]", "Params.sketch8_height")
pad6 = body.newObject("PartDesign::Pad", "Pad005")
pad6.Profile = sketch8
pad6.setExpression("Length", "Params.pad6_length")
doc.recompute()

fillet2 = body.newObject("PartDesign::Fillet", "Fillet001")
fillet2.Base = (pad6, edges_at(pad6, [(-11, -11.5, 35.6)]))
fillet2.setExpression("Radius", "Params.fillet2_radius")
doc.recompute()

fillet3 = body.newObject("PartDesign::Fillet", "Fillet002")
fillet3.Base = (fillet2, edges_at(fillet2, [(11, -11.5, 35.6)]))
fillet3.setExpression("Radius", "Params.fillet3_radius")
doc.recompute()

fillet4 = body.newObject("PartDesign::Fillet", "Fillet003")
fillet4.Base = (fillet3, edges_at(fillet3, [(0, 1.5, 67.6)]))
fillet4.setExpression("Radius", "Params.fillet4_radius")
doc.recompute()

fillet5 = body.newObject("PartDesign::Fillet", "Fillet004")
fillet5.Base = (fillet4, edges_at(fillet4, [(0, -11.5, 67.6)]))
fillet5.setExpression("Radius", "Params.fillet5_radius")
doc.recompute()

fillet6 = body.newObject("PartDesign::Fillet", "Fillet005")
fillet6.Base = (fillet5, edges_at(fillet5, [(-21.625, -16.5, 0)]))
fillet6.setExpression("Radius", "Params.fillet6_radius")
doc.recompute()

fillet7 = body.newObject("PartDesign::Fillet", "Fillet006")
fillet7.Base = (fillet6, edges_at(fillet6, [(-21.625, -26.5, 0)]))
fillet7.setExpression("Radius", "Params.fillet7_radius")
doc.recompute()

fillet8 = body.newObject("PartDesign::Fillet", "Fillet007")
fillet8.Base = (fillet7, edges_at(fillet7, [(-5.225, -26.5, 0.326)]))
fillet8.setExpression("Radius", "Params.fillet8_radius")
doc.recompute()

fillet9 = body.newObject("PartDesign::Fillet", "Fillet008")
fillet9.Base = (fillet8, edges_at(fillet8, [(-5.225, -16.5, 0.326)]))
fillet9.setExpression("Radius", "Params.fillet9_radius")
doc.recompute()

fillet10 = body.newObject("PartDesign::Fillet", "Fillet009")
fillet10.Base = (fillet9, edges_at(fillet9, [(-3.5, -31.5, 25.326)]))
fillet10.setExpression("Radius", "Params.fillet10_radius")
doc.recompute()

fillet11 = body.newObject("PartDesign::Fillet", "Fillet010")
fillet11.Base = (fillet10, edges_at(fillet10, [(-23.5, -31.5, 25.326)]))
fillet11.setExpression("Radius", "Params.fillet11_radius")

sketch9 = body.newObject("Sketcher::SketchObject", "Sketch008")
sketch9.AttachmentSupport = (doc.getObject("YZ_Plane"), [""])
sketch9.MapMode = "FlatFace"
sketch9.AttachmentOffset = App.Placement(Vector(0, 0, -2.5), App.Rotation())
sketch9.addGeometry(Part.LineSegment(Vector(-9.563552, 44.083602, 0), Vector(-10.664596, 60.019495, 0)), False)
sketch9.addGeometry(Part.ArcOfCircle(Part.Circle(Vector(-5.196927, 60.701182, 0), Vector(0, 0, 1), 5.51), math.radians(-11.030224), math.radians(187.106739)), False)
sketch9.addGeometry(Part.LineSegment(Vector(0.211283, 59.646972, 0), Vector(-1.466289, 44.039053, 0)), False)
sketch9.addGeometry(Part.ArcOfCircle(Part.Circle(Vector(-5.514354, 44.164228, 0), Vector(0, 0, 1), 4.05), math.radians(-178.859291), math.radians(-1.771153)), False)
sketch9.addGeometry(Part.LineSegment(Vector(-8.673575, 60.21846, 0), Vector(-7.564354, 44.164228, 0)), False)
sketch9.addGeometry(Part.ArcOfCircle(Part.Circle(Vector(-5.514354, 44.164228, 0), Vector(0, 0, 1), 2.05), math.radians(180), math.radians(360)), False)
sketch9.addGeometry(Part.LineSegment(Vector(-3.464354, 44.164228, 0), Vector(-1.767099, 59.955275, 0)), False)
sketch9.addGeometry(Part.ArcOfCircle(Part.Circle(Vector(-5.196927, 60.701182, 0), Vector(0, 0, 1), 3.51), math.radians(-12.269444), math.radians(187.904808)), False)
sketch9.addConstraint(Sketcher.Constraint("Coincident", 0, 2, 1, 2))
sketch9.addConstraint(Sketcher.Constraint("Coincident", 1, 1, 2, 1))
sketch9.addConstraint(Sketcher.Constraint("Coincident", 2, 2, 3, 2))
sketch9.addConstraint(Sketcher.Constraint("Coincident", 3, 1, 0, 1))
sketch9.addConstraint(Sketcher.Constraint("Coincident", 4, 2, 5, 1))
sketch9.addConstraint(Sketcher.Constraint("Coincident", 5, 2, 6, 1))
sketch9.addConstraint(Sketcher.Constraint("Coincident", 6, 2, 7, 1))
sketch9.addConstraint(Sketcher.Constraint("Coincident", 7, 2, 4, 1))
sketch9.addConstraint(Sketcher.Constraint("Coincident", 5, 3, 3, 3))
sketch9.addConstraint(Sketcher.Constraint("Coincident", 7, 3, 1, 3))
sketch9.addConstraint(Sketcher.Constraint("Parallel", 0, 4))
sketch9.addConstraint(Sketcher.Constraint("Parallel", 2, 6))
sketch9.addConstraint(Sketcher.Constraint("Horizontal", 5, 3, 4, 2))
sketch9.addConstraint(Sketcher.Constraint("Horizontal", 4, 2, 5, 2))
sketch9.addConstraint(Sketcher.Constraint("Radius", 1, Q("5.51 mm")))
sketch9.addConstraint(Sketcher.Constraint("Radius", 3, Q("4.05 mm")))
sketch9.addConstraint(Sketcher.Constraint("Radius", 5, Q("2.05 mm")))
sketch9.addConstraint(Sketcher.Constraint("Radius", 7, Q("3.51 mm")))
sketch9.addConstraint(Sketcher.Constraint("DistanceY", -1, 1, 3, 1, Q("44.083602 mm")))
sketch9.addConstraint(Sketcher.Constraint("DistanceX", 6, 2, -1, 1, Q("1.767099 mm")))
sketch9.addConstraint(Sketcher.Constraint("DistanceY", -1, 1, 3, 3, Q("44.164228 mm")))
sketch9.addConstraint(Sketcher.Constraint("DistanceY", -1, 1, 1, 1, Q("59.646972 mm")))
sketch9.addConstraint(Sketcher.Constraint("DistanceX", 2, 2, -1, 1, Q("1.466289 mm")))
sketch9.addConstraint(Sketcher.Constraint("DistanceX", 3, 1, -1, 1, Q("9.563552 mm")))
sketch9.addConstraint(Sketcher.Constraint("DistanceY", -1, 1, 7, 2, Q("60.21846 mm")))
sketch9.addConstraint(Sketcher.Constraint("DistanceX", 0, 2, 1, 3, Q("5.467669 mm")))
sketch9.setExpression("Constraints[14]", "Params.sketch9_radius")
sketch9.setExpression("Constraints[15]", "Params.sketch9_radius2")
sketch9.setExpression("Constraints[16]", "Params.sketch9_radius3")
sketch9.setExpression("Constraints[17]", "Params.sketch9_radius4")
pad7 = body.newObject("PartDesign::Pad", "Pad006")
pad7.Profile = sketch9
pad7.setExpression("Length", "Params.pad7_length")
pad7.Reversed = True

doc.recompute()
